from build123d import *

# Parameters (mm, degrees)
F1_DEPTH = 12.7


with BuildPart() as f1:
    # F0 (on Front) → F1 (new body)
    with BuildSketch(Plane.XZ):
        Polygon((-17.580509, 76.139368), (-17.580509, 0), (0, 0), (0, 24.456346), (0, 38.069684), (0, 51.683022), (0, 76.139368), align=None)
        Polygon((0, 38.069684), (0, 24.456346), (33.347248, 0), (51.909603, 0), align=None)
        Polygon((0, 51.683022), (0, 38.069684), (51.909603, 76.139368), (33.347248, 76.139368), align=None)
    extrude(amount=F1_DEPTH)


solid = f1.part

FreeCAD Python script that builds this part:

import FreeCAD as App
import Part
import Sketcher
from FreeCAD import Vector
Q = App.Units.Quantity

doc = App.newDocument("Part")
body = doc.addObject("PartDesign::Body", "Body")

sketch1 = body.newObject("Sketcher::SketchObject", "Sketch")
sketch1.AttachmentSupport = (doc.getObject("XZ_Plane"), [""])
sketch1.MapMode = "FlatFace"
sketch1.addGeometry([
    Part.LineSegment(Vector(-18, 76, 0), Vector(-18, 0, 0)),
    Part.LineSegment(Vector(-18, 0, 0), Vector(0, 0, 0)),
    Part.LineSegment(Vector(0, 0, 0), Vector(0, 24, 0)),
    Part.LineSegment(Vector(0, 24, 0), Vector(33, 0, 0)),
    Part.LineSegment(Vector(33, 0, 0), Vector(52, 0, 0)),
    Part.LineSegment(Vector(52, 0, 0), Vector(0, 38, 0)),
    Part.LineSegment(Vector(0, 38, 0), Vector(52, 76, 0)),
    Part.LineSegment(Vector(52, 76, 0), Vector(33, 76, 0)),
    Part.LineSegment(Vector(33, 76, 0), Vector(0, 52, 0)),
    Part.LineSegment(Vector(0, 52, 0), Vector(0, 76, 0)),
    Part.LineSegment(Vector(0, 76, 0), Vector(-18, 76, 0)),
], False)
sketch1.addConstraint([
    Sketcher.Constraint("Coincident", 0, 2, 1, 1),
    Sketcher.Constraint("Coincident", 1, 2, 2, 1),
    Sketcher.Constraint("Coincident", 2, 2, 3, 1),
    Sketcher.Constraint("Coincident", 3, 2, 4, 1),
    Sketcher.Constraint("Coincident", 4, 2, 5, 1),
    Sketcher.Constraint("Coincident", 5, 2, 6, 1),
    Sketcher.Constraint("Coincident", 6, 2, 7, 1),
    Sketcher.Constraint("Coincident", 7, 2, 8, 1),
    Sketcher.Constraint("Coincident", 8, 2, 9, 1),
    Sketcher.Constraint("Coincident", 9, 2, 10, 1),
    Sketcher.Constraint("Coincident", 10, 2, 0, 1),
    Sketcher.Constraint("Vertical", 0),
    Sketcher.Constraint("Horizontal", 1),
    Sketcher.Constraint("Vertical", 2),
    Sketcher.Constraint("Horizontal", 4),
    Sketcher.Constraint("Horizontal", 7),
    Sketcher.Constraint("Vertical", 9),
    Sketcher.Constraint("Horizontal", 10),
    Sketcher.Constraint("Coincident", 1, 2, -1, 1),
    Sketcher.Constraint("PointOnObject", 3, 2, -1),
    Sketcher.Constraint("PointOnObject", 5, 2, -2),
    Sketcher.Constraint("PointOnObject", 8, 2, -2),
    Sketcher.Constraint("Parallel", 3, 5),
    Sketcher.Constraint("Parallel", 6, 8),
    Sketcher.Constraint("Horizontal", 7, 2, 9, 2),
    Sketcher.Constraint("Vertical", 4, 2, 6, 2),
    Sketcher.Constraint("Vertical", 3, 2, 7, 2),
    Sketcher.Constraint("Equal", 2, 9),
    Sketcher.Constraint("DistanceX", 1, 1, 1, 2, Q("17.580509 mm")),
    Sketcher.Constraint("DistanceY", 0, 2, 0, 1, Q("76.139368 mm")),
    Sketcher.Constraint("Distance", 3, Q("41.353982 mm")),
    Sketcher.Constraint("Distance", 5, Q("64.373191 mm")),
])
pad1 = body.newObject("PartDesign::Pad", "Pad")
pad1.Profile = sketch1
pad1.Length = Q("0.5 in")

doc.recompute()
